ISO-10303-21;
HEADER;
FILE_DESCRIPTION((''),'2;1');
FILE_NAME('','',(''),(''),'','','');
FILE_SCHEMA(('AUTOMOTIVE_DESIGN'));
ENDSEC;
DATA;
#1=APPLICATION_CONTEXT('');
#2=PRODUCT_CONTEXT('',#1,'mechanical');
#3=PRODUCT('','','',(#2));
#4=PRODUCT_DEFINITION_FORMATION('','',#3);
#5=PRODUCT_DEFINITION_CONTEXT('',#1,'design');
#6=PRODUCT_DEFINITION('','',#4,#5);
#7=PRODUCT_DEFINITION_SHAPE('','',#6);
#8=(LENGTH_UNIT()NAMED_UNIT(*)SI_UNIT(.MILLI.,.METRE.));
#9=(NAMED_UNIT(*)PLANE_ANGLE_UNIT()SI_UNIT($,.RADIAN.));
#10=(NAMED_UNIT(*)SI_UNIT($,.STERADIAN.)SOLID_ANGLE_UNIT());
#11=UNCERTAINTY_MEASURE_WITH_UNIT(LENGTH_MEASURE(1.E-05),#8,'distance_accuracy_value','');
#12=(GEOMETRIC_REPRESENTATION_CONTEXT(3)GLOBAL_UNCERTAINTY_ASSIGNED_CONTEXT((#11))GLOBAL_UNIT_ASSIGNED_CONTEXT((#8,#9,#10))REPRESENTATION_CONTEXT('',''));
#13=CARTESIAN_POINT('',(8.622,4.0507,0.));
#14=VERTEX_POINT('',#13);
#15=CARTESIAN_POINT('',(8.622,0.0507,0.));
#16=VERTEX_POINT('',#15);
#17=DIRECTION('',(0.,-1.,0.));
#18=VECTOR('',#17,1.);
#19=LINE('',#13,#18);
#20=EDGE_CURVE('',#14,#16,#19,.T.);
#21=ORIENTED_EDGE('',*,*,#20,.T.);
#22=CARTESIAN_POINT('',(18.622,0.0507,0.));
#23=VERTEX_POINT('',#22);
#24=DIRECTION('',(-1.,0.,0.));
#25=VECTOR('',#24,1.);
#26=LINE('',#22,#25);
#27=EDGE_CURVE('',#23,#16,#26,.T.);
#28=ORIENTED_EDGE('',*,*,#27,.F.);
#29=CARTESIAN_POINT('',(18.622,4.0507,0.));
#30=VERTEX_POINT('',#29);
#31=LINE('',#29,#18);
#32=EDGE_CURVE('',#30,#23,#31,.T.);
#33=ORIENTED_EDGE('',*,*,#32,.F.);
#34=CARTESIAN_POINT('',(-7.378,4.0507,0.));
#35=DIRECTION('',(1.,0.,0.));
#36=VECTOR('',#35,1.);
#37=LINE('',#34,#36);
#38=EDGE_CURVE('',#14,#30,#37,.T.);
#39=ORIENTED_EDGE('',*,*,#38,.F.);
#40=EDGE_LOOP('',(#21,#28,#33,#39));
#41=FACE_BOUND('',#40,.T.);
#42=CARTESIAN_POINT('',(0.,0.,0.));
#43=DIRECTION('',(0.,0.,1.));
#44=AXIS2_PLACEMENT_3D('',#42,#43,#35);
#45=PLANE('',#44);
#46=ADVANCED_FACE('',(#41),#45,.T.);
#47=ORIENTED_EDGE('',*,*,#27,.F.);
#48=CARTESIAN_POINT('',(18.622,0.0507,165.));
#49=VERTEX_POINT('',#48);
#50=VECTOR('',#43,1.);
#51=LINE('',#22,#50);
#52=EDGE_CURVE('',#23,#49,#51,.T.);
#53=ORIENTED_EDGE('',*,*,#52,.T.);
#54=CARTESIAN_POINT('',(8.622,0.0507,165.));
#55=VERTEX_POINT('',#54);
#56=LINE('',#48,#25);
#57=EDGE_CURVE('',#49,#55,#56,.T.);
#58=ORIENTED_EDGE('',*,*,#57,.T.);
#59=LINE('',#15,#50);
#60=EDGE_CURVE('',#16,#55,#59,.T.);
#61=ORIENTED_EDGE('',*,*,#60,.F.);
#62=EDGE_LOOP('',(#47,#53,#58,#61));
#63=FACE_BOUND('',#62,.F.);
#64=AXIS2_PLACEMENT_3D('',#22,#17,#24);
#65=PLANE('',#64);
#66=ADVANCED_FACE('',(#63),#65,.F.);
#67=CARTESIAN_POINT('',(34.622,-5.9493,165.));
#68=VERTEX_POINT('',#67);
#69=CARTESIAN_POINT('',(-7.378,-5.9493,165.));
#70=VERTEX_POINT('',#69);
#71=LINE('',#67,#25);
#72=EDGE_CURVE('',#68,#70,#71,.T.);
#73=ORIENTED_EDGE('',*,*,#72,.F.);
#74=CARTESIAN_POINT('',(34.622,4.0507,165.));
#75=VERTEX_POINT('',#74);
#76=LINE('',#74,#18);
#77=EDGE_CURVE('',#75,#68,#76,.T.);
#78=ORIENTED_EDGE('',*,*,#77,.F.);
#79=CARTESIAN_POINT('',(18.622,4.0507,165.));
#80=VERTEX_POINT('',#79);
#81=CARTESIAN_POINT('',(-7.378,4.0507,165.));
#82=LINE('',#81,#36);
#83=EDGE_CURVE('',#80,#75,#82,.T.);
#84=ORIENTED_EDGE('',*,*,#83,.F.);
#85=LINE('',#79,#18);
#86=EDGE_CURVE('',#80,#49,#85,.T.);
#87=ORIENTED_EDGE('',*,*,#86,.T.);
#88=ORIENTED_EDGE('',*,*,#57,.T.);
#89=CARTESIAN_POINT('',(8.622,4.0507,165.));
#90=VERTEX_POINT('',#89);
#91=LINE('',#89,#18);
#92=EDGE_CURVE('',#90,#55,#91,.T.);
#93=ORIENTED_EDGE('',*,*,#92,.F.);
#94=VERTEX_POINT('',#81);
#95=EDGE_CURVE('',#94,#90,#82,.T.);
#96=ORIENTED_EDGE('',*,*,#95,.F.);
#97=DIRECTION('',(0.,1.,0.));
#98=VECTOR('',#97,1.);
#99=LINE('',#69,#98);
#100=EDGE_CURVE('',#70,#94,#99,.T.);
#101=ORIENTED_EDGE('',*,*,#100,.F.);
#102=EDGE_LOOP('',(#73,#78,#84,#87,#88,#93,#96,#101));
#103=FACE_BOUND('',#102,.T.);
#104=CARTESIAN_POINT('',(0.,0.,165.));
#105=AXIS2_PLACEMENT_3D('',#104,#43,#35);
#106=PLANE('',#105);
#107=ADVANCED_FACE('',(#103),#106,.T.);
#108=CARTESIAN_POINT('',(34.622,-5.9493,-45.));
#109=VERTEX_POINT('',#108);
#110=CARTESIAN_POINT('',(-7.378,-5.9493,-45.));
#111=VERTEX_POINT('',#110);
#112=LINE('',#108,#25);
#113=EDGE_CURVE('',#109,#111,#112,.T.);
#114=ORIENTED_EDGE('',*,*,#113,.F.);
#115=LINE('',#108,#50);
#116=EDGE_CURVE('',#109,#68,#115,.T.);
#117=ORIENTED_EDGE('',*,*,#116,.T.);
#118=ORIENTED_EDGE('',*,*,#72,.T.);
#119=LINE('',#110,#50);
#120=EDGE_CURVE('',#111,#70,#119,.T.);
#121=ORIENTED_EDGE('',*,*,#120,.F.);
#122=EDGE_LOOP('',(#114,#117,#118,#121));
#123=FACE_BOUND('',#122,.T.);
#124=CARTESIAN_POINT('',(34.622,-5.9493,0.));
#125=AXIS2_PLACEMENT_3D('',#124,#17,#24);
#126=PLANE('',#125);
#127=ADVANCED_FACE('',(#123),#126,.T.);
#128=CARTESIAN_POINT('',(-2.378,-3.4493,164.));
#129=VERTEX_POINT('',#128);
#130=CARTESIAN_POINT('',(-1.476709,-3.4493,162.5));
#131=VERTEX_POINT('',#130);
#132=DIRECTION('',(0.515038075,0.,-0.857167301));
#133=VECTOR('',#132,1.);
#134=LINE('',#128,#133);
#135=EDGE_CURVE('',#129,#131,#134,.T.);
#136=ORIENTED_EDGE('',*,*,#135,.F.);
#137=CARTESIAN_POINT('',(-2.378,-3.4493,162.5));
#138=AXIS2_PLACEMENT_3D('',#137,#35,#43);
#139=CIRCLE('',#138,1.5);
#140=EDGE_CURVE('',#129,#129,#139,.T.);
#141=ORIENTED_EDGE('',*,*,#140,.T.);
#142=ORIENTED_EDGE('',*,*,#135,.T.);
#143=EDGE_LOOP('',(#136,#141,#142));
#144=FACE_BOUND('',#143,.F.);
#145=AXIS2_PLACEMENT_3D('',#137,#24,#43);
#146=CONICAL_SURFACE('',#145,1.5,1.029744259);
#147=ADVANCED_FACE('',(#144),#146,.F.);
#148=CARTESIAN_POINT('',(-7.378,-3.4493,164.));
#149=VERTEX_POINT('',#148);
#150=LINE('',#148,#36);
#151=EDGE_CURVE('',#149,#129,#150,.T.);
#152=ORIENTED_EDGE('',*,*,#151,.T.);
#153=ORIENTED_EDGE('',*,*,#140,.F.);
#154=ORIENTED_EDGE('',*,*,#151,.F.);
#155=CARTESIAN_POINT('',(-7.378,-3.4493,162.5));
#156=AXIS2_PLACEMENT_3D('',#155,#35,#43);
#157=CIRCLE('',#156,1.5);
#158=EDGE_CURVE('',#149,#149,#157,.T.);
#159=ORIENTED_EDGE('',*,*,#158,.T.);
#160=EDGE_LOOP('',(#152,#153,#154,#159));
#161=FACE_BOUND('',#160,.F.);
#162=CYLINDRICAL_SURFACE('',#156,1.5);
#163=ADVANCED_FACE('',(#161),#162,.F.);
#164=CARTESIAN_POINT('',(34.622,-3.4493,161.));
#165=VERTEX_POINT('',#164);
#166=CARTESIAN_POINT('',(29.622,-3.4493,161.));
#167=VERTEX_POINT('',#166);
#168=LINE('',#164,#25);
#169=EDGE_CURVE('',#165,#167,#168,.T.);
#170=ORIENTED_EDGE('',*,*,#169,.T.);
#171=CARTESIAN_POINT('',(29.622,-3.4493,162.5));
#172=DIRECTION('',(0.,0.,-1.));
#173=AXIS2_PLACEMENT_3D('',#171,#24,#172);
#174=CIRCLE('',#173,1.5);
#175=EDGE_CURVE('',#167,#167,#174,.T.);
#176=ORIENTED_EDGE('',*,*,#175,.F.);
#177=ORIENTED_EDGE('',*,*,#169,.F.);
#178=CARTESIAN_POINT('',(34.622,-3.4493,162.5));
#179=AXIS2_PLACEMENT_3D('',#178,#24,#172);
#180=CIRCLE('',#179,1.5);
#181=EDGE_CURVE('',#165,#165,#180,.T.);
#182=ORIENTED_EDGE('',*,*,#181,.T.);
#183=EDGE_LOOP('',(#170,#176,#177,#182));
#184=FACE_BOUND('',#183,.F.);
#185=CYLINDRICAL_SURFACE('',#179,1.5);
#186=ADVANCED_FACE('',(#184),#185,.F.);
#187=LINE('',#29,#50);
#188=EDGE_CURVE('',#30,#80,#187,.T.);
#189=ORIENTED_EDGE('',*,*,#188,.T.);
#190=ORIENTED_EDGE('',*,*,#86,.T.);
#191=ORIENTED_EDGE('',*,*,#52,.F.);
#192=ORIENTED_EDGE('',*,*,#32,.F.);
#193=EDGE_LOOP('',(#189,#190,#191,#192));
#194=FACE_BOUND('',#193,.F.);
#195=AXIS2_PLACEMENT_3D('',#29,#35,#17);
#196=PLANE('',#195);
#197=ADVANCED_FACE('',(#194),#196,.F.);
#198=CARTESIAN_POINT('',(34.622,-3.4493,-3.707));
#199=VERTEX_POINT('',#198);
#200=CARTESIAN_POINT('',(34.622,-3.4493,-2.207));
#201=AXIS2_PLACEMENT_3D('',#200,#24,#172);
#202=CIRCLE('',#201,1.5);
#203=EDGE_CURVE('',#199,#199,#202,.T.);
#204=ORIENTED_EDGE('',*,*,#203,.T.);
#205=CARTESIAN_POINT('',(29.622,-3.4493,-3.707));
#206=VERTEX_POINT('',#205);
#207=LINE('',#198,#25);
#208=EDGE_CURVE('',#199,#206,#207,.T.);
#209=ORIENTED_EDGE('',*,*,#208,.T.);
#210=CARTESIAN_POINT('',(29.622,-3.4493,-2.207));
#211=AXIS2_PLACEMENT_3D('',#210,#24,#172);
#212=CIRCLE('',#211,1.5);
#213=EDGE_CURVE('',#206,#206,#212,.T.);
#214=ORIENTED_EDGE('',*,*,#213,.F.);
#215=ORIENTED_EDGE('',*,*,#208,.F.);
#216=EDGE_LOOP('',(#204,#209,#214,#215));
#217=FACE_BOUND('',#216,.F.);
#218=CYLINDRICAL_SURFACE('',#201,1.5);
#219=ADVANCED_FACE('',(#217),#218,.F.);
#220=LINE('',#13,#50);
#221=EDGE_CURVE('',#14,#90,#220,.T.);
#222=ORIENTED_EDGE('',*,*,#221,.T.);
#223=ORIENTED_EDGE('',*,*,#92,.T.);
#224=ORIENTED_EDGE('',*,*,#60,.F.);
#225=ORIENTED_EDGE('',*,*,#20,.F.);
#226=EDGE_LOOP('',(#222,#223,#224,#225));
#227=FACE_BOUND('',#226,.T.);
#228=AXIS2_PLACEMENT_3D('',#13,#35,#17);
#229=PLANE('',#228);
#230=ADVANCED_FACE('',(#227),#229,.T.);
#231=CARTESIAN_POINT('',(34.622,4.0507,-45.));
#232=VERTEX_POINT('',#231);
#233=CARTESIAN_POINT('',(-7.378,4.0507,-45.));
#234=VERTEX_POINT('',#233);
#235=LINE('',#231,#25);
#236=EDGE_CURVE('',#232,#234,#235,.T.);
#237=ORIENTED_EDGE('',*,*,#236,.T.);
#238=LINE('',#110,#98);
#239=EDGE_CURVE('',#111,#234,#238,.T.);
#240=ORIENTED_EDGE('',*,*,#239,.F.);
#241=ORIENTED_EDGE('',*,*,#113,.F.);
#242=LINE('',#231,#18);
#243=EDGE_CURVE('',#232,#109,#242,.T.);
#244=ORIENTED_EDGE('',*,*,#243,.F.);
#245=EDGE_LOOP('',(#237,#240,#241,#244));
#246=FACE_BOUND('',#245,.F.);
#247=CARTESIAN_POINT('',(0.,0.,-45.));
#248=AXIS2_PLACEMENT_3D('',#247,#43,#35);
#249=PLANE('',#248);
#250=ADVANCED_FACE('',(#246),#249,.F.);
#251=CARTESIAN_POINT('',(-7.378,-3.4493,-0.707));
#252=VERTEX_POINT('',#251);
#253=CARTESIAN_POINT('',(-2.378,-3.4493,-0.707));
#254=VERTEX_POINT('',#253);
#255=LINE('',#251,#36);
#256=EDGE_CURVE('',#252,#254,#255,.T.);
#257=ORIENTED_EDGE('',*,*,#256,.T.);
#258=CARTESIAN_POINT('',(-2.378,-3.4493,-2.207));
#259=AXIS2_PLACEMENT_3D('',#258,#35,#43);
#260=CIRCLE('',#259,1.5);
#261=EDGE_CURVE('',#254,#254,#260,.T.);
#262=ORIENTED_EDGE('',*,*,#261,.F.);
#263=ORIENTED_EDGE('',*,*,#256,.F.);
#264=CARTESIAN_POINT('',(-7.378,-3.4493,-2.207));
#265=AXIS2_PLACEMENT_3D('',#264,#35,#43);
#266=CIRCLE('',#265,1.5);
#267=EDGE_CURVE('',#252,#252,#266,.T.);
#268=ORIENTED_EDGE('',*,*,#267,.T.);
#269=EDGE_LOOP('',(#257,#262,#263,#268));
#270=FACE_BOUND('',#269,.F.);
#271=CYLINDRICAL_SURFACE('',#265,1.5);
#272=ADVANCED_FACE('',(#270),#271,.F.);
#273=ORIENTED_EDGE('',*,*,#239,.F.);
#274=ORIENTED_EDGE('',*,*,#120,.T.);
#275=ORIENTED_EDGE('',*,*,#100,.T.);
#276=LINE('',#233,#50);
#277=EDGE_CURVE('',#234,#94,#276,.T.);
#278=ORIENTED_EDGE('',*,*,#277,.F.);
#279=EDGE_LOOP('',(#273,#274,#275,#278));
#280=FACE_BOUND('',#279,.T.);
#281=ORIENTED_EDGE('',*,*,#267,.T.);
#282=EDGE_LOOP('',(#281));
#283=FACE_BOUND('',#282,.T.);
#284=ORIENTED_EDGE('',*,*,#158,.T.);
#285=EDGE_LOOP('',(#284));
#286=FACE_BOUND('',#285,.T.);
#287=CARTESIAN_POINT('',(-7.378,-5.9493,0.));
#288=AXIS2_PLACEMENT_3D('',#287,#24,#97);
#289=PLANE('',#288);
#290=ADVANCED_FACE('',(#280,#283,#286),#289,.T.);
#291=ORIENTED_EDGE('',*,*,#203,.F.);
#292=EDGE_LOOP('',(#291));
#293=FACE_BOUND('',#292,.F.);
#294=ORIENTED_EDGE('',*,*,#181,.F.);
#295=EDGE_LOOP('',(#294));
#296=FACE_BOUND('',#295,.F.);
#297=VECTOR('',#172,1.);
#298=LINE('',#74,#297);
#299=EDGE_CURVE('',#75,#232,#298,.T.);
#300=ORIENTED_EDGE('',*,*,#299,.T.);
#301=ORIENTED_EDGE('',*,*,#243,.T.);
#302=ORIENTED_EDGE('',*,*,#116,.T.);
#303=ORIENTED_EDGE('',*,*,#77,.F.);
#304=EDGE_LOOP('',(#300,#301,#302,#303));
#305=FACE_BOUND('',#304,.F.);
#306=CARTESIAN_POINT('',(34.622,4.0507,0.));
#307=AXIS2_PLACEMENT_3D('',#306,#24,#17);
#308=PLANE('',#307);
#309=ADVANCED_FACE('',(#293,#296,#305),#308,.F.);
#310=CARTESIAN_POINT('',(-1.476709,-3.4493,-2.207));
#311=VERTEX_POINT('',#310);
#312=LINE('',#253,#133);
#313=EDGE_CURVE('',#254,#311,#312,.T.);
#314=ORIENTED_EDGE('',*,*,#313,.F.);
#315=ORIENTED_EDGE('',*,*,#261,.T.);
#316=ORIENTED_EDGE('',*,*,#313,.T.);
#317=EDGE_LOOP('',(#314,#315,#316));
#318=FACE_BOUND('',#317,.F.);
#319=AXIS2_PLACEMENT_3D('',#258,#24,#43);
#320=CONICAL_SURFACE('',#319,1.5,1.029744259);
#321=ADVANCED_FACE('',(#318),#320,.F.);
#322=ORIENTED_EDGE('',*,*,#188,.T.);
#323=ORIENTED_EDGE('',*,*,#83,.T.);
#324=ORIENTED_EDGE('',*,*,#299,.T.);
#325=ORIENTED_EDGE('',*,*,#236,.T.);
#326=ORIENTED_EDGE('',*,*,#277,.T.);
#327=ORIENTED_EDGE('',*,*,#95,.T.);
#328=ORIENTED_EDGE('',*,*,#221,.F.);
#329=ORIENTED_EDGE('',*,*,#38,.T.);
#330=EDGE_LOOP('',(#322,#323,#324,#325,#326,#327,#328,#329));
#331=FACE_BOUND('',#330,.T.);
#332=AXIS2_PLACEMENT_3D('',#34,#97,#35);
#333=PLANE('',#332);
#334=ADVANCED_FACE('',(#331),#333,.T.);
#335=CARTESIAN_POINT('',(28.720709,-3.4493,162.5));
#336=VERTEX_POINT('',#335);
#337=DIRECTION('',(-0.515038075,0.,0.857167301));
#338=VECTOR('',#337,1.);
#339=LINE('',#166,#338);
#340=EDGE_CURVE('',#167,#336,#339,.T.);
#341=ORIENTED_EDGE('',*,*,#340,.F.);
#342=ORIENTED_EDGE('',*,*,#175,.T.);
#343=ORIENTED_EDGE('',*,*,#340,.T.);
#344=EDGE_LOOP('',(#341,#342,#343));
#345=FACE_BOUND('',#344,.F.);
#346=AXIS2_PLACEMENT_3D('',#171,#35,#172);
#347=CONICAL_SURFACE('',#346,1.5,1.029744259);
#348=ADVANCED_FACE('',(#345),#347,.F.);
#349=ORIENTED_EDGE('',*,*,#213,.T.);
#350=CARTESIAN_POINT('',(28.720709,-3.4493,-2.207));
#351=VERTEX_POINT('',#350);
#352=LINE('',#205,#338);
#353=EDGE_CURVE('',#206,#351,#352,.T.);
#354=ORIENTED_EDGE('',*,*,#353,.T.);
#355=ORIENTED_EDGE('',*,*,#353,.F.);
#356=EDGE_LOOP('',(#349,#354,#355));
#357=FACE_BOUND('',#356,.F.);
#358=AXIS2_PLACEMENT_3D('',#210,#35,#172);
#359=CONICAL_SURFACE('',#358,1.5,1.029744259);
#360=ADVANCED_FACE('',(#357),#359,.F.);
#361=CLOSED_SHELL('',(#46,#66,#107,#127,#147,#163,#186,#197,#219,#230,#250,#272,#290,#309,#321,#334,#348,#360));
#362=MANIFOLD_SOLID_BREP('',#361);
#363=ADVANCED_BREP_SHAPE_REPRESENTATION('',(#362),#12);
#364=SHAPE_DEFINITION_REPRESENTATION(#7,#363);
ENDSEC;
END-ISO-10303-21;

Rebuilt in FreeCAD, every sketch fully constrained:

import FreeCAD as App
import Part
import Sketcher
from FreeCAD import Vector

doc = App.newDocument("Part")
params = doc.addObject("Spreadsheet::Sheet", "Params")
for row, (alias, value) in enumerate([
    ("sketch1_width", "42 mm"),
    ("sketch1_height", "10 mm"),
    ("pad1_length", "45 mm"),
    ("sketch2_width", "16 mm"),
    ("sketch2_width2", "42 mm"),
    ("sketch2_height", "4 mm"),
    ("pad2_length", "165 mm"),
    ("sketch3_diameter", "3 mm"),
    ("hole_diameter", "3 mm"),
    ("hole_depth", "5 mm"),
    ("sketch4_diameter", "3 mm"),
    ("hole2_diameter", "3 mm"),
    ("hole2_depth", "5 mm"),
    ("sketch5_diameter", "3 mm"),
    ("hole3_diameter", "3 mm"),
    ("hole3_depth", "5 mm"),
    ("sketch6_diameter", "3 mm"),
    ("hole4_diameter", "3 mm"),
    ("hole4_depth", "5 mm"),
], start=1):
    params.set(f"A{row}", alias)
    params.set(f"B{row}", "=" + value)
    params.setAlias(f"B{row}", alias)

body = doc.addObject("PartDesign::Body", "Body")

# Sketch on XY plane
sketch1 = body.newObject("Sketcher::SketchObject", "Sketch")
sketch1.AttachmentSupport = (doc.getObject("XY_Plane"), [""])
sketch1.MapMode = "FlatFace"
sketch1.addGeometry([
    Part.LineSegment(Vector(-7, 4, 0), Vector(-7, -6, 0)),
    Part.LineSegment(Vector(-7, -6, 0), Vector(35, -6, 0)),
    Part.LineSegment(Vector(35, -6, 0), Vector(35, 4, 0)),
    Part.LineSegment(Vector(35, 4, 0), Vector(-7, 4, 0)),
], False)
sketch1.addConstraint([
    Sketcher.Constraint("Coincident", 0, 2, 1, 1),
    Sketcher.Constraint("Coincident", 1, 2, 2, 1),
    Sketcher.Constraint("Coincident", 2, 2, 3, 1),
    Sketcher.Constraint("Coincident", 3, 2, 0, 1),
    Sketcher.Constraint("Vertical", 0),
    Sketcher.Constraint("Horizontal", 1),
    Sketcher.Constraint("Vertical", 2),
    Sketcher.Constraint("Horizontal", 3),
    Sketcher.Constraint("DistanceX", 1, 1, 1, 2, 42.0),
    Sketcher.Constraint("DistanceY", 0, 2, 0, 1, 10.0),
    Sketcher.Constraint("DistanceX", 0, 2, -1, 1, 7.378),
    Sketcher.Constraint("DistanceY", 0, 2, -1, 1, 5.9493),
])
sketch1.setExpression("Constraints[8]", "Params.sketch1_width")
sketch1.setExpression("Constraints[9]", "Params.sketch1_height")
pad1 = body.newObject("PartDesign::Pad", "Pad")
pad1.Profile = sketch1
pad1.setExpression("Length", "Params.pad1_length")
pad1.Reversed = True

# Sketch on XY plane
sketch2 = body.newObject("Sketcher::SketchObject", "Sketch001")
sketch2.AttachmentSupport = (doc.getObject("XY_Plane"), [""])
sketch2.MapMode = "FlatFace"
sketch2.addGeometry([
    Part.LineSegment(Vector(8.6, 4.1, 0), Vector(-7.4, 4.1, 0)),  # 0
    Part.LineSegment(Vector(-7.4, 4.1, 0), Vector(-7.4, -5.9, 0)),  # 1
    Part.LineSegment(Vector(-7.4, -5.9, 0), Vector(34.6, -5.9, 0)),  # 2
    Part.LineSegment(Vector(34.6, -5.9, 0), Vector(34.6, 4.1, 0)),  # 3
    Part.LineSegment(Vector(34.6, 4.1, 0), Vector(18.6, 4.1, 0)),  # 4
    Part.LineSegment(Vector(18.6, 4.1, 0), Vector(18.6, 0.1, 0)),  # 5
    Part.LineSegment(Vector(18.6, 0.1, 0), Vector(8.6, 0.1, 0)),  # 6
    Part.LineSegment(Vector(8.6, 0.1, 0), Vector(8.6, 4.1, 0)),  # 7
], False)
sketch2.addConstraint([
    Sketcher.Constraint("Coincident", 0, 2, 1, 1),
    Sketcher.Constraint("Coincident", 1, 2, 2, 1),
    Sketcher.Constraint("Coincident", 2, 2, 3, 1),
    Sketcher.Constraint("Coincident", 3, 2, 4, 1),
    Sketcher.Constraint("Coincident", 4, 2, 5, 1),
    Sketcher.Constraint("Coincident", 5, 2, 6, 1),
    Sketcher.Constraint("Coincident", 6, 2, 7, 1),
    Sketcher.Constraint("Coincident", 7, 2, 0, 1),
    Sketcher.Constraint("Horizontal", 0),
    Sketcher.Constraint("Vertical", 1),
    Sketcher.Constraint("Horizontal", 2),
    Sketcher.Constraint("Vertical", 3),
    Sketcher.Constraint("Horizontal", 4),
    Sketcher.Constraint("Vertical", 5),
    Sketcher.Constraint("Horizontal", 6),
    Sketcher.Constraint("Vertical", 7),
    Sketcher.Constraint("Horizontal", 0, 2, 3, 2),
    Sketcher.Constraint("Equal", 0, 4),
    Sketcher.Constraint("Equal", 6, 1),
    Sketcher.Constraint("DistanceX", 0, 2, 0, 1, 16.0),
    Sketcher.Constraint("DistanceX", 2, 1, 2, 2, 42.0),
    Sketcher.Constraint("DistanceY", 5, 2, 5, 1, 4.0),
    Sketcher.Constraint("DistanceX", 0, 2, -1, 1, 7.378),
    Sketcher.Constraint("DistanceY", -1, 1, 0, 2, 4.0507),
])
sketch2.setExpression("Constraints[19]", "Params.sketch2_width")
sketch2.setExpression("Constraints[20]", "Params.sketch2_width2")
sketch2.setExpression("Constraints[21]", "Params.sketch2_height")
pad2 = body.newObject("PartDesign::Pad", "Pad001")
pad2.Profile = sketch2
pad2.setExpression("Length", "Params.pad2_length")

# Sketch on YZ plane
sketch3 = body.newObject("Sketcher::SketchObject", "Sketch002")
sketch3.AttachmentSupport = (doc.getObject("YZ_Plane"), [""])
sketch3.MapMode = "FlatFace"
sketch3.AttachmentOffset = App.Placement(Vector(0, 0, 34.622), App.Rotation())
sketch3.addGeometry(Part.Circle(Vector(-3.4, -2.2, 0), Vector(0, 0, 1), 1.5), False)
sketch3.addConstraint([
    Sketcher.Constraint("Diameter", 0, 3.0),
    Sketcher.Constraint("DistanceY", 0, 3, -1, 1, 2.207),
    Sketcher.Constraint("DistanceX", 0, 3, -1, 1, 3.4493),
])
sketch3.setExpression("Constraints[0]", "Params.sketch3_diameter")
doc.recompute()
hole = body.newObject("PartDesign::Hole", "Hole")
hole.Profile = sketch3
hole.ThreadType = "None"
hole.setExpression("Diameter", "Params.hole_diameter")
hole.DepthType = "Dimension"
hole.setExpression("Depth", "Params.hole_depth")
hole.DrillPoint = "Angled"
hole.DrillPointAngle = 118

# Sketch on YZ plane
sketch4 = body.newObject("Sketcher::SketchObject", "Sketch003")
sketch4.AttachmentSupport = (doc.getObject("YZ_Plane"), [""])
sketch4.MapMode = "FlatFace"
sketch4.AttachmentOffset = App.Placement(Vector(0, 0, 34.622), App.Rotation())
sketch4.addGeometry(Part.Circle(Vector(-3.4, 162.5, 0), Vector(0, 0, 1), 1.5), False)
sketch4.addConstraint([
    Sketcher.Constraint("Diameter", 0, 3.0),
    Sketcher.Constraint("DistanceY", -1, 1, 0, 3, 162.5),
    Sketcher.Constraint("DistanceX", 0, 3, -1, 1, 3.4493),
])
sketch4.setExpression("Constraints[0]", "Params.sketch4_diameter")
doc.recompute()
hole2 = body.newObject("PartDesign::Hole", "Hole001")
hole2.Profile = sketch4
hole2.ThreadType = "None"
hole2.setExpression("Diameter", "Params.hole2_diameter")
hole2.DepthType = "Dimension"
hole2.setExpression("Depth", "Params.hole2_depth")
hole2.DrillPoint = "Angled"
hole2.DrillPointAngle = 118

# Sketch on YZ plane
sketch5 = body.newObject("Sketcher::SketchObject", "Sketch004")
sketch5.AttachmentSupport = (doc.getObject("YZ_Plane"), [""])
sketch5.MapMode = "FlatFace"
sketch5.AttachmentOffset = App.Placement(Vector(0, 0, -7.378), App.Rotation())
sketch5.addGeometry(Part.Circle(Vector(-3.4, 162.5, 0), Vector(0, 0, 1), 1.5), False)
sketch5.addConstraint([
    Sketcher.Constraint("Diameter", 0, 3.0),
    Sketcher.Constraint("DistanceY", -1, 1, 0, 3, 162.5),
    Sketcher.Constraint("DistanceX", 0, 3, -1, 1, 3.4493),
])
sketch5.setExpression("Constraints[0]", "Params.sketch5_diameter")
doc.recompute()
hole3 = body.newObject("PartDesign::Hole", "Hole002")
hole3.Profile = sketch5
hole3.ThreadType = "None"
hole3.setExpression("Diameter", "Params.hole3_diameter")
hole3.DepthType = "Dimension"
hole3.setExpression("Depth", "Params.hole3_depth")
hole3.DrillPoint = "Angled"
hole3.DrillPointAngle = 118
hole3.Reversed = True

# Sketch on YZ plane
sketch6 = body.newObject("Sketcher::SketchObject", "Sketch005")
sketch6.AttachmentSupport = (doc.getObject("YZ_Plane"), [""])
sketch6.MapMode = "FlatFace"
sketch6.AttachmentOffset = App.Placement(Vector(0, 0, -7.378), App.Rotation())
sketch6.addGeometry(Part.Circle(Vector(-3.4, -2.2, 0), Vector(0, 0, 1), 1.5), False)
sketch6.addConstraint([
    Sketcher.Constraint("Diameter", 0, 3.0),
    Sketcher.Constraint("DistanceY", 0, 3, -1, 1, 2.207),
    Sketcher.Constraint("DistanceX", 0, 3, -1, 1, 3.4493),
])
sketch6.setExpression("Constraints[0]", "Params.sketch6_diameter")
doc.recompute()
hole4 = body.newObject("PartDesign::Hole", "Hole003")
hole4.Profile = sketch6
hole4.ThreadType = "None"
hole4.setExpression("Diameter", "Params.hole4_diameter")
hole4.DepthType = "Dimension"
hole4.setExpression("Depth", "Params.hole4_depth")
hole4.DrillPoint = "Angled"
hole4.DrillPointAngle = 118
hole4.Reversed = True

doc.recompute()
